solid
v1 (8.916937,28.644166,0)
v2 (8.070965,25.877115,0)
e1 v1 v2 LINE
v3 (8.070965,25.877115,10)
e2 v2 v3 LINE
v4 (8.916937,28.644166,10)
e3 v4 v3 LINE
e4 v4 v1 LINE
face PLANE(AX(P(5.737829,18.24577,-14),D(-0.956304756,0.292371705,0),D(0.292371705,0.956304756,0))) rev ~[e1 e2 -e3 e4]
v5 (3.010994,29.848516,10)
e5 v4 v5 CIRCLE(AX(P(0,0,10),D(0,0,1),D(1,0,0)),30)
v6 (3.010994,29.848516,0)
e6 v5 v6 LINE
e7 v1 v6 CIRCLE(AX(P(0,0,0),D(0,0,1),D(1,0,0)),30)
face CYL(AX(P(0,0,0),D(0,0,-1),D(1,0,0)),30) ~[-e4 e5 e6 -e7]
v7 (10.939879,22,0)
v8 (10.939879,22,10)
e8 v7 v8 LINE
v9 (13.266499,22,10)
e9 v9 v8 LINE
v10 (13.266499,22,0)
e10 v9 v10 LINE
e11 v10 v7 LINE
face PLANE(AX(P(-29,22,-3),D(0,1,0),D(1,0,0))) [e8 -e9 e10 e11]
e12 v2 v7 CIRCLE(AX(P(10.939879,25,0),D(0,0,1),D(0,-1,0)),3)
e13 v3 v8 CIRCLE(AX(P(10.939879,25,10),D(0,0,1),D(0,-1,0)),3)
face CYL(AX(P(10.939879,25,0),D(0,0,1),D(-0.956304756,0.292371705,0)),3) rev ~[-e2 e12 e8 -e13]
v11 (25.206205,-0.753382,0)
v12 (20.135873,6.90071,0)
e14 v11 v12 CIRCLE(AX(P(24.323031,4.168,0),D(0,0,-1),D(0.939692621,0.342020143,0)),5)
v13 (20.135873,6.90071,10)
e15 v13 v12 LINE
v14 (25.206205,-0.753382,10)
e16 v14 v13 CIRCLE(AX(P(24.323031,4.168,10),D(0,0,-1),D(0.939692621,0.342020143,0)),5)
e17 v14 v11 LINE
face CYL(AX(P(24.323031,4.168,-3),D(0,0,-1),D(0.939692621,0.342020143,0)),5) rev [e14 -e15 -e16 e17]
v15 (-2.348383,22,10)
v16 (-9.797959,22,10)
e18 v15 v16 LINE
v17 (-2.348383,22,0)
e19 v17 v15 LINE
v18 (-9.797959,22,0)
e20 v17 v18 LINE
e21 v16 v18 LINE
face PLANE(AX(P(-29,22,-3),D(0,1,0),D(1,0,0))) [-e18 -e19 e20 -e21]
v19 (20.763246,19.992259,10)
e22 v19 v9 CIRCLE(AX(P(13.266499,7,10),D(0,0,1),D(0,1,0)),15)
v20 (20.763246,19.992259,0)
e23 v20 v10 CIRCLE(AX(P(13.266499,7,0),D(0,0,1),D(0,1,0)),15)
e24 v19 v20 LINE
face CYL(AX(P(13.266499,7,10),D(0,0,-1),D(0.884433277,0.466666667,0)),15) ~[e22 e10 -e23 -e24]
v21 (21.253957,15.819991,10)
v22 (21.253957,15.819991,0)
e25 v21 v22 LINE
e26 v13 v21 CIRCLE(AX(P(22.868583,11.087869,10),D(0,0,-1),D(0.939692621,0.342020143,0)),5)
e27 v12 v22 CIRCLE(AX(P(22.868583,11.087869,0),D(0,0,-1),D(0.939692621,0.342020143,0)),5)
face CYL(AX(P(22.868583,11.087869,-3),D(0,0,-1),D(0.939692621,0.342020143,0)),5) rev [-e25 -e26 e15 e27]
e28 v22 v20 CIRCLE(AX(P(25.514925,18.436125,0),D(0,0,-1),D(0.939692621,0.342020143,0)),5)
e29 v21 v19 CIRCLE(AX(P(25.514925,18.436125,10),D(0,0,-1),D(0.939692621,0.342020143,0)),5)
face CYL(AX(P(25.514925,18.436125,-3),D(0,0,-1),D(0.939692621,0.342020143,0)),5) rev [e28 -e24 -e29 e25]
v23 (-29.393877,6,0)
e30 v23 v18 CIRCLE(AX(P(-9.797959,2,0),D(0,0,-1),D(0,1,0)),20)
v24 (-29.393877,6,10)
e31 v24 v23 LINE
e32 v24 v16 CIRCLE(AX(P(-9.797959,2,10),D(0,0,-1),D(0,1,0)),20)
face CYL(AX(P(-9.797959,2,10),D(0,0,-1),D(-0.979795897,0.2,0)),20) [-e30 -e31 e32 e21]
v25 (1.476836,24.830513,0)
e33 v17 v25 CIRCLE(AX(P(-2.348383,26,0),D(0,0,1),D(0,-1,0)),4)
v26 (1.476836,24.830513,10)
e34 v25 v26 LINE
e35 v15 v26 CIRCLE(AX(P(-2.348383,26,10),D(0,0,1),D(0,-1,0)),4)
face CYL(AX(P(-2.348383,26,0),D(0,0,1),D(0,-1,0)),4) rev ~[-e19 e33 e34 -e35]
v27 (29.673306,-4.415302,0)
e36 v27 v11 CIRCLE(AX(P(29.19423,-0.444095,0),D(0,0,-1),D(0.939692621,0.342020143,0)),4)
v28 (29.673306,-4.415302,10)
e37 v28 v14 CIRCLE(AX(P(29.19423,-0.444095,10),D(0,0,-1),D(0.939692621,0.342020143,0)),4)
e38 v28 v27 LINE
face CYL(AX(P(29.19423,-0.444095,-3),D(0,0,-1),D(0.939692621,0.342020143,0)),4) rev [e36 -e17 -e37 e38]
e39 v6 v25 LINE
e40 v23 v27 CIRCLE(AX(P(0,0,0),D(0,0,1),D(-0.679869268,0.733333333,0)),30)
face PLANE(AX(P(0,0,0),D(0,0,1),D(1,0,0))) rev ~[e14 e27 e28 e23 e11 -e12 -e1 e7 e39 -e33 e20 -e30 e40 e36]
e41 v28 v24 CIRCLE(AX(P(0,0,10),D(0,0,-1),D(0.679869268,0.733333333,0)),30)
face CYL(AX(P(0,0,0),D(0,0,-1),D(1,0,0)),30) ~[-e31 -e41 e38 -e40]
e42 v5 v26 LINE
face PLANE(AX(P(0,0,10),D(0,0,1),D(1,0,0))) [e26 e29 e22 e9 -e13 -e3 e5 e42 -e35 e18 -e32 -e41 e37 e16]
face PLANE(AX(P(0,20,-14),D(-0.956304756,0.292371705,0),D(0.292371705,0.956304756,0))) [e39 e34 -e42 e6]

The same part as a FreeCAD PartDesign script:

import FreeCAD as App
import Part
import Sketcher


def edges_at(feature, points):
    """Names of the edges that pass closest to the given points."""
    edges = feature.Shape.Edges
    near = lambda p: min(range(len(edges)), key=lambda i: edges[i].distToShape(Part.Vertex(*p))[0])
    return sorted({f"Edge{near(p) + 1}" for p in points})


def add_polygon(sketch, points):
    """Adds a closed chain of lines whose ends are joined by coincident constraints."""
    first, n = sketch.GeometryCount, len(points)
    for a, b in zip(points, points[1:] + points[:1]):
        sketch.addGeometry(Part.LineSegment(App.Vector(*a, 0), App.Vector(*b, 0)), False)
    for i in range(n):
        sketch.addConstraint(Sketcher.Constraint("Coincident", first + i, 2, first + (i + 1) % n, 1))

doc = App.newDocument("Part")
body = doc.addObject("PartDesign::Body", "Body")

# Sketch on XY plane
sketch1 = body.newObject("Sketcher::SketchObject", "Sketch")
sketch1.AttachmentSupport = (doc.getObject("XY_Plane"), [""])
sketch1.MapMode = "FlatFace"
sketch1.AttachmentOffset = App.Placement(App.Vector(0, 0, -2), App.Rotation())
add_polygon(sketch1, [(23, 5), (23, -9), (33, -9), (33, 5)])  # lines 0-3
sketch1.addConstraint(Sketcher.Constraint("Vertical", 0))
sketch1.addConstraint(Sketcher.Constraint("Horizontal", 1))
sketch1.addConstraint(Sketcher.Constraint("Vertical", 2))
sketch1.addConstraint(Sketcher.Constraint("Horizontal", 3))
sketch1.addConstraint(Sketcher.Constraint("DistanceX", 1, 1, 1, 2, 10.0))
sketch1.addConstraint(Sketcher.Constraint("DistanceY", 0, 2, 0, 1, 14.0))
sketch1.addConstraint(Sketcher.Constraint("DistanceX", -1, 1, 0, 2, 23.0))
sketch1.addConstraint(Sketcher.Constraint("DistanceY", 0, 2, -1, 1, 9.0))
pad1 = body.newObject("PartDesign::Pad", "Pad")
pad1.Profile = sketch1
pad1.Length = 15
body2 = doc.addObject("PartDesign::Body", "Body001")

# Sketch on XY plane
sketch2 = body2.newObject("Sketcher::SketchObject", "Sketch001")
sketch2.AttachmentSupport = (doc.getObject("XY_Plane001"), [""])
sketch2.MapMode = "FlatFace"
sketch2.AttachmentOffset = App.Placement(App.Vector(0, 0, -3), App.Rotation())
sketch2.addGeometry(Part.Circle(App.Vector(24, 2, 0), App.Vector(0, 0, 1), 5), False)
sketch2.addConstraint(Sketcher.Constraint("Diameter", 0, 10.0))
sketch2.addConstraint(Sketcher.Constraint("DistanceX", -1, 1, 0, 3, 24.0))
sketch2.addConstraint(Sketcher.Constraint("DistanceY", -1, 1, 0, 3, 2.0))
pad2 = body2.newObject("PartDesign::Pad", "Pad001")
pad2.Profile = sketch2
pad2.Length = 15
doc.recompute()

boolean = body2.newObject("PartDesign::Boolean", "Boolean")
boolean.Type = "Fuse"
boolean.addObjects([body])
body3 = doc.addObject("PartDesign::Body", "Body002")

# Sketch on XY plane
sketch3 = body3.newObject("Sketcher::SketchObject", "Sketch002")
sketch3.AttachmentSupport = (doc.getObject("XY_Plane002"), [""])
sketch3.MapMode = "FlatFace"
sketch3.AttachmentOffset = App.Placement(App.Vector(0, 0, -3), App.Rotation())
sketch3.addGeometry(Part.Circle(App.Vector(29, 8, 0), App.Vector(0, 0, 1), 5), False)
sketch3.addConstraint(Sketcher.Constraint("Diameter", 0, 10.0))
sketch3.addConstraint(Sketcher.Constraint("DistanceX", -1, 1, 0, 3, 29.0))
sketch3.addConstraint(Sketcher.Constraint("DistanceY", -1, 1, 0, 3, 8.0))
pad3 = body3.newObject("PartDesign::Pad", "Pad002")
pad3.Profile = sketch3
pad3.Length = 15
doc.recompute()

boolean2 = body3.newObject("PartDesign::Boolean", "Boolean001")
boolean2.Type = "Fuse"
boolean2.addObjects([body2])
body4 = doc.addObject("PartDesign::Body", "Body003")

# Sketch on XY plane
sketch4 = body4.newObject("Sketcher::SketchObject", "Sketch003")
sketch4.AttachmentSupport = (doc.getObject("XY_Plane003"), [""])
sketch4.MapMode = "FlatFace"
sketch4.AttachmentOffset = App.Placement(App.Vector(0, 0, -3), App.Rotation())
sketch4.addGeometry(Part.Circle(App.Vector(26, -11, 0), App.Vector(0, 0, 1), 4), False)
sketch4.addConstraint(Sketcher.Constraint("Diameter", 0, 8.0))
sketch4.addConstraint(Sketcher.Constraint("DistanceX", -1, 1, 0, 3, 26.0))
sketch4.addConstraint(Sketcher.Constraint("DistanceY", 0, 3, -1, 1, 11.0))
pad4 = body4.newObject("PartDesign::Pad", "Pad003")
pad4.Profile = sketch4
pad4.Length = 15
doc.recompute()

boolean3 = body4.newObject("PartDesign::Boolean", "Boolean002")
boolean3.Type = "Fuse"
boolean3.addObjects([body3])
body5 = doc.addObject("PartDesign::Body", "Body004")

# Sketch on XY plane
sketch5 = body5.newObject("Sketcher::SketchObject", "Sketch004")
sketch5.AttachmentSupport = (doc.getObject("XY_Plane004"), [""])
sketch5.MapMode = "FlatFace"
sketch5.AttachmentOffset = App.Placement(App.Vector(0, 0, -3), App.Rotation())
sketch5.addGeometry(Part.Circle(App.Vector(23, -5, 0), App.Vector(0, 0, 1), 5), False)
sketch5.addConstraint(Sketcher.Constraint("Diameter", 0, 10.0))
sketch5.addConstraint(Sketcher.Constraint("DistanceX", -1, 1, 0, 3, 23.0))
sketch5.addConstraint(Sketcher.Constraint("DistanceY", 0, 3, -1, 1, 5.0))
pad5 = body5.newObject("PartDesign::Pad", "Pad004")
pad5.Profile = sketch5
pad5.Length = 15
doc.recompute()

boolean4 = body5.newObject("PartDesign::Boolean", "Boolean003")
boolean4.Type = "Fuse"
boolean4.addObjects([body4])
body6 = doc.addObject("PartDesign::Body", "Body005")
doc.recompute()

body5.Placement = App.Placement(App.Vector(1, 1, 0), App.Rotation(App.Vector(0, 0, 1), 20))
boolean5 = body6.newObject("PartDesign::Boolean", "Boolean004")
boolean5.Type = "Fuse"
boolean5.addObjects([body5])
body7 = doc.addObject("PartDesign::Body", "Body006")

# Sketch on XY plane
sketch6 = body7.newObject("Sketcher::SketchObject", "Sketch005")
sketch6.AttachmentSupport = (doc.getObject("XY_Plane006"), [""])
sketch6.MapMode = "FlatFace"
add_polygon(sketch6, [(0, 25), (0, 0), (6, 0), (6, 25)])  # lines 0-3
sketch6.addConstraint(Sketcher.Constraint("Vertical", 0))
sketch6.addConstraint(Sketcher.Constraint("Horizontal", 1))
sketch6.addConstraint(Sketcher.Constraint("Vertical", 2))
sketch6.addConstraint(Sketcher.Constraint("Horizontal", 3))
sketch6.addConstraint(Sketcher.Constraint("Coincident", 0, 2, -1, 1))
sketch6.addConstraint(Sketcher.Constraint("DistanceX", 1, 1, 1, 2, 6.0))
sketch6.addConstraint(Sketcher.Constraint("DistanceY", 0, 2, 0, 1, 25.0))
pad6 = body7.newObject("PartDesign::Pad", "Pad005")
pad6.Profile = sketch6
pad6.Length = 38
body8 = doc.addObject("PartDesign::Body", "Body007")
doc.recompute()

body7.Placement = App.Placement(App.Vector(0, 20, -14), App.Rotation(App.Vector(0, 0, 1), 343))
boolean6 = body8.newObject("PartDesign::Boolean", "Boolean005")
boolean6.Type = "Fuse"
boolean6.addObjects([body7])
body9 = doc.addObject("PartDesign::Body", "Body008")
body9.AllowCompound = True

# Sketch on XY plane
sketch7 = body9.newObject("Sketcher::SketchObject", "Sketch006")
sketch7.AttachmentSupport = (doc.getObject("XY_Plane008"), [""])
sketch7.MapMode = "FlatFace"
sketch7.AttachmentOffset = App.Placement(App.Vector(0, 0, -3), App.Rotation())
add_polygon(sketch7, [(-29, 36), (-29, 22), (30, 22), (30, 36)])  # lines 0-3
sketch7.addConstraint(Sketcher.Constraint("Vertical", 0))
sketch7.addConstraint(Sketcher.Constraint("Horizontal", 1))
sketch7.addConstraint(Sketcher.Constraint("Vertical", 2))
sketch7.addConstraint(Sketcher.Constraint("Horizontal", 3))
sketch7.addConstraint(Sketcher.Constraint("DistanceX", 1, 1, 1, 2, 59.0))
sketch7.addConstraint(Sketcher.Constraint("DistanceY", 0, 2, 0, 1, 14.0))
sketch7.addConstraint(Sketcher.Constraint("DistanceX", 0, 2, -1, 1, 29.0))
sketch7.addConstraint(Sketcher.Constraint("DistanceY", -1, 1, 0, 2, 22.0))
pad7 = body9.newObject("PartDesign::Pad", "Pad006")
pad7.Profile = sketch7
pad7.Length = 15
doc.recompute()

boolean7 = body9.newObject("PartDesign::Boolean", "Boolean006")
boolean7.Type = "Cut"
boolean7.addObjects([body8])
body10 = doc.addObject("PartDesign::Body", "Body009")

# Sketch on XY plane
sketch8 = body10.newObject("Sketcher::SketchObject", "Sketch007")
sketch8.AttachmentSupport = (doc.getObject("XY_Plane009"), [""])
sketch8.MapMode = "FlatFace"
sketch8.addGeometry(Part.Circle(App.Vector(0, 0, 0), App.Vector(0, 0, 1), 30), False)
sketch8.addConstraint(Sketcher.Constraint("Coincident", 0, 3, -1, 1))
sketch8.addConstraint(Sketcher.Constraint("Diameter", 0, 60.0))
pad8 = body10.newObject("PartDesign::Pad", "Pad007")
pad8.Profile = sketch8
pad8.Length = 10
doc.recompute()

boolean8 = body10.newObject("PartDesign::Boolean", "Boolean007")
boolean8.Type = "Cut"
boolean8.addObjects([body9])
doc.recompute()

fillet = body10.newObject("PartDesign::Fillet", "Fillet")
fillet.Base = (boolean8, edges_at(boolean8, [(-20.396, 22, 5)]))
fillet.Radius = 20
doc.recompute()

fillet2 = body10.newObject("PartDesign::Fillet", "Fillet001")
fillet2.Base = (fillet, edges_at(fillet, [(20.396, 22, 5)]))
fillet2.Radius = 15
doc.recompute()

fillet3 = body10.newObject("PartDesign::Fillet", "Fillet002")
fillet3.Base = (fillet2, edges_at(fillet2, [(0.611, 22, 5)]))
fillet3.Radius = 4
doc.recompute()

fillet4 = body10.newObject("PartDesign::Fillet", "Fillet003")
fillet4.Base = (fillet3, edges_at(fillet3, [(6.886, 22, 5)]))
fillet4.Radius = 3
doc.recompute()

boolean9 = body10.newObject("PartDesign::Boolean", "Boolean008")
boolean9.Type = "Cut"
boolean9.addObjects([body6])

doc.recompute()
